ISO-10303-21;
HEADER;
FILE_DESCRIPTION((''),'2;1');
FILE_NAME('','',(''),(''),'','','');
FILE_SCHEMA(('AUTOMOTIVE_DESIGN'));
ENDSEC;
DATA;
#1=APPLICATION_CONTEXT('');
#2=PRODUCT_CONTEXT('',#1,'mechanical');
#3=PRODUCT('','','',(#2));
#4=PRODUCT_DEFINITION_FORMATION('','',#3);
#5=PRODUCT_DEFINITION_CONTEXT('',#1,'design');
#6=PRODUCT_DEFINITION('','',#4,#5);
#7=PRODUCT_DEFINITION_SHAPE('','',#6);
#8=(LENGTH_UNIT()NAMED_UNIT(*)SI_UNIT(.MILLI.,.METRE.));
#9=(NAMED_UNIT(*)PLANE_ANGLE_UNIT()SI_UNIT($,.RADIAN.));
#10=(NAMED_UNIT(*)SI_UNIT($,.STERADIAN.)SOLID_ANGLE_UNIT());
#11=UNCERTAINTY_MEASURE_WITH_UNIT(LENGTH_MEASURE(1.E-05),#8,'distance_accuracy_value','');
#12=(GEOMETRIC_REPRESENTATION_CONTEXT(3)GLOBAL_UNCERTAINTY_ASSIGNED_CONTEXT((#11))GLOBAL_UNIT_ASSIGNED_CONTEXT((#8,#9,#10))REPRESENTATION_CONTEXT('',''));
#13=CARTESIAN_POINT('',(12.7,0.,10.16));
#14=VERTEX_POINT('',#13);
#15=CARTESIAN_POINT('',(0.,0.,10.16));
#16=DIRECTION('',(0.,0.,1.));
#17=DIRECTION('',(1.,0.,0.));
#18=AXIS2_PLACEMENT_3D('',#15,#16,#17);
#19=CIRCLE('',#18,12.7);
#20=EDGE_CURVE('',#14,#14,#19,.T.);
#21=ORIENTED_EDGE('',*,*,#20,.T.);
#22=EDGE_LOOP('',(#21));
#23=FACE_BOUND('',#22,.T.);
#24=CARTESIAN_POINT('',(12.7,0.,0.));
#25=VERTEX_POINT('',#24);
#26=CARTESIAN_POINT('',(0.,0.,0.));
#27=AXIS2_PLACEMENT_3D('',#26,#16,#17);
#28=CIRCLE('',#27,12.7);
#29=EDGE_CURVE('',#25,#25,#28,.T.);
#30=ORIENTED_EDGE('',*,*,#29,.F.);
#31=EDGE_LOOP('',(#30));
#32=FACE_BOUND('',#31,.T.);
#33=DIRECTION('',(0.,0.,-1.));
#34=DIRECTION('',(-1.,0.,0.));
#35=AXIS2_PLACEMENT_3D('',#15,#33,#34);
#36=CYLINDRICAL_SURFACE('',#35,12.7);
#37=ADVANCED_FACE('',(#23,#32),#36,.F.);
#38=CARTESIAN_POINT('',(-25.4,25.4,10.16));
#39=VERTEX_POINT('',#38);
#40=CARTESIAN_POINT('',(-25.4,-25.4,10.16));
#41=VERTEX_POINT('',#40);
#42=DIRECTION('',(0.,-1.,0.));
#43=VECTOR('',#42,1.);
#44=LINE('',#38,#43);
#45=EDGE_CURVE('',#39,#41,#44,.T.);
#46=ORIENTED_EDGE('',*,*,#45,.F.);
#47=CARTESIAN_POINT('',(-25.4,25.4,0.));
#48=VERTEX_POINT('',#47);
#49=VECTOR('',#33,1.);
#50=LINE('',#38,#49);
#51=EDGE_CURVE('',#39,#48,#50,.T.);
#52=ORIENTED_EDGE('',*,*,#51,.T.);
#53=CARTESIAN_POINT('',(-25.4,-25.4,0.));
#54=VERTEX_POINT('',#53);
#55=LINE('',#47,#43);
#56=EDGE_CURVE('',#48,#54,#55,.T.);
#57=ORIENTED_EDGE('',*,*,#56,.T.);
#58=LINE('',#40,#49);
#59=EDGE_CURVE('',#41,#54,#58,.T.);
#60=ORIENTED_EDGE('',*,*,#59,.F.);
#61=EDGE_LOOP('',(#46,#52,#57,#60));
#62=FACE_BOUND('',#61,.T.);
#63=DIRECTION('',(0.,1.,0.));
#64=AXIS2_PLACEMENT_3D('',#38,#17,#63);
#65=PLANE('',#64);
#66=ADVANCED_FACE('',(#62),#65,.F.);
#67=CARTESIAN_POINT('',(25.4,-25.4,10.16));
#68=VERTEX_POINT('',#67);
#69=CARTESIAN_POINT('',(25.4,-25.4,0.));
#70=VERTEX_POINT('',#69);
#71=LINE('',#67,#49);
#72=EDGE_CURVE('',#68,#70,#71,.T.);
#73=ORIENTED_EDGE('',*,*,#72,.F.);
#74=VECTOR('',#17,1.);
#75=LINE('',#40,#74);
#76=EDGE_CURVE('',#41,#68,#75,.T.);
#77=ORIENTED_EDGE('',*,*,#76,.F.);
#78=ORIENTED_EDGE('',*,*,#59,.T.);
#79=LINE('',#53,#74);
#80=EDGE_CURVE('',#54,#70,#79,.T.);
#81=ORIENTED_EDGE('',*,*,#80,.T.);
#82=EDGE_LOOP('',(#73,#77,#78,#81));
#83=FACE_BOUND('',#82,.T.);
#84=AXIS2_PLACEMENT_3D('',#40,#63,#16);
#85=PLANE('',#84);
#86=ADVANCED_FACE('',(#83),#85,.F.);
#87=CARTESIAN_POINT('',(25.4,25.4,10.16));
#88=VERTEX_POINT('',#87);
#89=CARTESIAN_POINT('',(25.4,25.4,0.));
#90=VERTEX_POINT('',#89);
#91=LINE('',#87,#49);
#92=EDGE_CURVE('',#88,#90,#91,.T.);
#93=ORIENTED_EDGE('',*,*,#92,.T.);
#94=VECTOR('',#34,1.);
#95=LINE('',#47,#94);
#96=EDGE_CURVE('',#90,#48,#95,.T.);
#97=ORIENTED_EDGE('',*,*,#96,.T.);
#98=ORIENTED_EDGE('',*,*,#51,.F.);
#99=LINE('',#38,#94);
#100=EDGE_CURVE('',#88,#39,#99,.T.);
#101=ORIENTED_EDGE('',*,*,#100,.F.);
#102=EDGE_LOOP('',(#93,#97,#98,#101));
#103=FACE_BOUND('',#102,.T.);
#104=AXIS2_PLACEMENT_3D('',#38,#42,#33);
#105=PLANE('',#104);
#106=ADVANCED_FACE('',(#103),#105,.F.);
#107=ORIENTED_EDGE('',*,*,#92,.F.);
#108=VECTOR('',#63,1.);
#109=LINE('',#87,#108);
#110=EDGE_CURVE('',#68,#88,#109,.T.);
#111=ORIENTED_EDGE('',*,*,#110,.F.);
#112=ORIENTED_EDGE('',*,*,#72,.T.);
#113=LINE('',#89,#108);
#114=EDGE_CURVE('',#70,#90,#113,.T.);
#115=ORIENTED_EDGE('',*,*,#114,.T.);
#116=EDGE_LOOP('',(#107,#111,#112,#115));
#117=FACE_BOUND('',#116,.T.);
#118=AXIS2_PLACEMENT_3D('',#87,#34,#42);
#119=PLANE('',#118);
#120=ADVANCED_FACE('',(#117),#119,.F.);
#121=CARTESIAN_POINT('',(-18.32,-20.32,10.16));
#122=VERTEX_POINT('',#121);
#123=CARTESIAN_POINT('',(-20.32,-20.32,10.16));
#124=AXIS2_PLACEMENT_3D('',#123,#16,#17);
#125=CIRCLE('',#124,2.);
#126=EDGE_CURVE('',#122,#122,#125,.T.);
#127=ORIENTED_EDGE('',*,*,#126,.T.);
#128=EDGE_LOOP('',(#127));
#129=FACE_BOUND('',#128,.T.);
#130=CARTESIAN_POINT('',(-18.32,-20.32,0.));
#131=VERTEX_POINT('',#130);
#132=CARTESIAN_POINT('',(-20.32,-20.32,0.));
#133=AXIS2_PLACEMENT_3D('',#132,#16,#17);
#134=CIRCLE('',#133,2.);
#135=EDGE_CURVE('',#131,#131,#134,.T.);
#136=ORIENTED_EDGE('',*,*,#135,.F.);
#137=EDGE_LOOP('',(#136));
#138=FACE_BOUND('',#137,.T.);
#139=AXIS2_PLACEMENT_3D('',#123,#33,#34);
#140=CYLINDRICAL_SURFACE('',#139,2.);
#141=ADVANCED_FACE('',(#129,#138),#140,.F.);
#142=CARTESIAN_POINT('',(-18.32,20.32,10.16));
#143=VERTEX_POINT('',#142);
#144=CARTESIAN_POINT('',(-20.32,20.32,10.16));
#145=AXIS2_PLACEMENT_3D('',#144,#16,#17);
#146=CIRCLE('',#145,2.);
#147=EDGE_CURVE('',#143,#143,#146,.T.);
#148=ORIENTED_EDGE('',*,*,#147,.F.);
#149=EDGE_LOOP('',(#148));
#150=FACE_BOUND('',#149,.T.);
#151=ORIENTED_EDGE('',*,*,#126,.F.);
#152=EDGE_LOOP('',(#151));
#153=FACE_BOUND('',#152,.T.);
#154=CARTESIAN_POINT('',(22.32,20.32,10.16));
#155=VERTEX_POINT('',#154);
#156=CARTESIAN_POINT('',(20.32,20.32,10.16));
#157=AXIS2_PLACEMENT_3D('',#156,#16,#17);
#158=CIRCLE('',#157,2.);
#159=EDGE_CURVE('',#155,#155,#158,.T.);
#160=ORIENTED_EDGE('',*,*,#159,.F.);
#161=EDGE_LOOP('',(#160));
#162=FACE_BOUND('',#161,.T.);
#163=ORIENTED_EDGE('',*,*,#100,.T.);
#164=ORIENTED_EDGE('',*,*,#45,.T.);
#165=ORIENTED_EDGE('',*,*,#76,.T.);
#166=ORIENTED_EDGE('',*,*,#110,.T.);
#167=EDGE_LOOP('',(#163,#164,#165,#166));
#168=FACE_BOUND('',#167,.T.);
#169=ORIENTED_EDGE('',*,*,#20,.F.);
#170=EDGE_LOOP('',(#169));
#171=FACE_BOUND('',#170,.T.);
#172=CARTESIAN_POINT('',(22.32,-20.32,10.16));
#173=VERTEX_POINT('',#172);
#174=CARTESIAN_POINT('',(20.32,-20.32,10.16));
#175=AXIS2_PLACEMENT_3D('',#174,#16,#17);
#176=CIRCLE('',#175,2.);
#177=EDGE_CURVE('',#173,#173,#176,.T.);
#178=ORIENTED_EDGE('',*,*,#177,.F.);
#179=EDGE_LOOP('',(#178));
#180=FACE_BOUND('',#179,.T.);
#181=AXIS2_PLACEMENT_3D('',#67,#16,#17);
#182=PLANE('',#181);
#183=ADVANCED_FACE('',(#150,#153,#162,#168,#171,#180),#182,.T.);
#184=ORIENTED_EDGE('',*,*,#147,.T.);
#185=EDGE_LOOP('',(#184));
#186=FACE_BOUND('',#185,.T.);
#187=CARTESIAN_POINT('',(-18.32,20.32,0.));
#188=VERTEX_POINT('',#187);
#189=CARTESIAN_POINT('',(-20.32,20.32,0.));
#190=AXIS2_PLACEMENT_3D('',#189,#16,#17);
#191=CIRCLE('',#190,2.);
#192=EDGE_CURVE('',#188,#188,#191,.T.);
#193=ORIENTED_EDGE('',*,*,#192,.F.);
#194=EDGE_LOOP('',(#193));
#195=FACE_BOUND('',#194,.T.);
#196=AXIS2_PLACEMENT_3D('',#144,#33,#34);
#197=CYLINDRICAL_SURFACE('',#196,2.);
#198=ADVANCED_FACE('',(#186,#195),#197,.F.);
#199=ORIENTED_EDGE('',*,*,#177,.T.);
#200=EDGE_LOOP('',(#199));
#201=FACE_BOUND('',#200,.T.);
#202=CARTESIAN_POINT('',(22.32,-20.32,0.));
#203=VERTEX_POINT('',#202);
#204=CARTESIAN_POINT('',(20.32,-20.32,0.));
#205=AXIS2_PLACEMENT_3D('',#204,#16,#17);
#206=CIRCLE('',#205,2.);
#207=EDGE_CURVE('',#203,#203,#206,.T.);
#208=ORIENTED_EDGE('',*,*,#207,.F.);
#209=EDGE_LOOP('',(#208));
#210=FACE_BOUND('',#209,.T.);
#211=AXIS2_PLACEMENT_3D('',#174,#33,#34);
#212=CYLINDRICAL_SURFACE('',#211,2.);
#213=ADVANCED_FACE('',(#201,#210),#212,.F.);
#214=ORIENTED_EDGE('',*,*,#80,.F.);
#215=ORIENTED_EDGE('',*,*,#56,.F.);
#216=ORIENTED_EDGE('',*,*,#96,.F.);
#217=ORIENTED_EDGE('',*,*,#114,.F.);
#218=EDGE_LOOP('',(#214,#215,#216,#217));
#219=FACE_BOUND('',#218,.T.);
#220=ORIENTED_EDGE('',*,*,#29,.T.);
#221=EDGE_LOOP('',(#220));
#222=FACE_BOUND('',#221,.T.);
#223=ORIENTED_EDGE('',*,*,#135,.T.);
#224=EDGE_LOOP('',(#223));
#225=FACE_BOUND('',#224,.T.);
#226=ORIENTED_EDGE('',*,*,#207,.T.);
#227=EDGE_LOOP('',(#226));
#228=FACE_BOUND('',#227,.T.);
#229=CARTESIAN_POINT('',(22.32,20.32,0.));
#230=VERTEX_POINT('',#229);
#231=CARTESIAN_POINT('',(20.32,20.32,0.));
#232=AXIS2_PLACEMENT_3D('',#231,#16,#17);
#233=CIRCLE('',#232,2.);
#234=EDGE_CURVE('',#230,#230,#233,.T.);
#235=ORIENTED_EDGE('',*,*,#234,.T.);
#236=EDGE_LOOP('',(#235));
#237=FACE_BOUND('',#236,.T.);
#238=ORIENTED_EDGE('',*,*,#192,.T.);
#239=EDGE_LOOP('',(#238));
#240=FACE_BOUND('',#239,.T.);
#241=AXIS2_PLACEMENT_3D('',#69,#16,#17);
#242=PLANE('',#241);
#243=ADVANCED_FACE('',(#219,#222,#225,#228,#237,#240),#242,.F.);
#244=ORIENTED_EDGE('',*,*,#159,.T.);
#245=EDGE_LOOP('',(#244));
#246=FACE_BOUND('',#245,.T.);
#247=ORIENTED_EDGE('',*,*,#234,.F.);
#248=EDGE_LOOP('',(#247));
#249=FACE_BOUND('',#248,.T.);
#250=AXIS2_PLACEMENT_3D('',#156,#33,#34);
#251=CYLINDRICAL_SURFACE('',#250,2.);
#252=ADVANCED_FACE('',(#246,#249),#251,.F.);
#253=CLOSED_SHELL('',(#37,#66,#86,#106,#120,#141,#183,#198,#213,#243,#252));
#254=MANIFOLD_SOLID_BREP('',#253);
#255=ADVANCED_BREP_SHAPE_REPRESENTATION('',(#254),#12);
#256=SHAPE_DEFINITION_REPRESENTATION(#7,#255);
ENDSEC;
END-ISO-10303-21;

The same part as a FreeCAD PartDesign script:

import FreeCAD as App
import Part
import Sketcher

V = App.Vector
Q = App.Units.Quantity


def add_polygon(sketch, points):
    """Adds a closed chain of lines whose ends are joined by coincident constraints."""
    first, n = sketch.GeometryCount, len(points)
    for a, b in zip(points, points[1:] + points[:1]):
        sketch.addGeometry(Part.LineSegment(App.Vector(*a, 0), App.Vector(*b, 0)), False)
    for i in range(n):
        sketch.addConstraint(Sketcher.Constraint("Coincident", first + i, 2, first + (i + 1) % n, 1))

doc = App.newDocument("Part")
body = doc.addObject("PartDesign::Body", "Body")

sketch1 = doc.addObject("Sketcher::SketchObject", "Sketch")
body.addObject(sketch1)
sketch1.AttachmentSupport = (doc.XY_Plane, [""])
sketch1.MapMode = "FlatFace"
add_polygon(sketch1, [(-25.4, 25.4), (-25.4, -25.4), (25.4, -25.4), (25.4, 25.4)])
sketch1.addGeometry(Part.Circle(V(-20.3, -20.3, 0), V(0, 0, 1), 2), False)
sketch1.addGeometry(Part.Circle(V(20.3, -20.3, 0), V(0, 0, 1), 2), False)
sketch1.addGeometry(Part.Circle(V(-20.3, 20.3, 0), V(0, 0, 1), 2), False)
sketch1.addGeometry(Part.Circle(V(0, 0, 0), V(0, 0, 1), 12.7), False)
sketch1.addGeometry(Part.Circle(V(20.3, 20.3, 0), V(0, 0, 1), 2), False)
sketch1.addConstraint([
    Sketcher.Constraint("Vertical", 0),
    Sketcher.Constraint("Horizontal", 1),
    Sketcher.Constraint("Vertical", 2),
    Sketcher.Constraint("Horizontal", 3),
    Sketcher.Constraint("Coincident", 7, 3, -1, 1),
    Sketcher.Constraint("Equal", 4, 5),
    Sketcher.Constraint("Equal", 5, 6),
    Sketcher.Constraint("Equal", 6, 8),
    Sketcher.Constraint("Symmetric", 5, 3, 6, 3, -1, 1),
    Sketcher.Constraint("Symmetric", 4, 3, 8, 3, -1, 1),
    Sketcher.Constraint("Symmetric", 0, 2, 2, 2, -1, 1),
    Sketcher.Constraint("Symmetric", 4, 3, 5, 3, -2),
    Sketcher.Constraint("Equal", 3, 0),
    Sketcher.Constraint("Diameter", 7, Q("1 in")),
    Sketcher.Constraint("DistanceX", 1, 1, 1, 2, Q("2 in")),
    Sketcher.Constraint("DistanceX", 4, 3, -1, 1, Q("0.8 in")),
    Sketcher.Constraint("DistanceY", 4, 3, -1, 1, Q("0.8 in")),
    Sketcher.Constraint("Diameter", 4, Q("4 mm")),
])
pad1 = doc.addObject("PartDesign::Pad", "Pad")
body.addObject(pad1)
pad1.Profile = sketch1
pad1.Length = Q("0.4 in")

doc.recompute()
